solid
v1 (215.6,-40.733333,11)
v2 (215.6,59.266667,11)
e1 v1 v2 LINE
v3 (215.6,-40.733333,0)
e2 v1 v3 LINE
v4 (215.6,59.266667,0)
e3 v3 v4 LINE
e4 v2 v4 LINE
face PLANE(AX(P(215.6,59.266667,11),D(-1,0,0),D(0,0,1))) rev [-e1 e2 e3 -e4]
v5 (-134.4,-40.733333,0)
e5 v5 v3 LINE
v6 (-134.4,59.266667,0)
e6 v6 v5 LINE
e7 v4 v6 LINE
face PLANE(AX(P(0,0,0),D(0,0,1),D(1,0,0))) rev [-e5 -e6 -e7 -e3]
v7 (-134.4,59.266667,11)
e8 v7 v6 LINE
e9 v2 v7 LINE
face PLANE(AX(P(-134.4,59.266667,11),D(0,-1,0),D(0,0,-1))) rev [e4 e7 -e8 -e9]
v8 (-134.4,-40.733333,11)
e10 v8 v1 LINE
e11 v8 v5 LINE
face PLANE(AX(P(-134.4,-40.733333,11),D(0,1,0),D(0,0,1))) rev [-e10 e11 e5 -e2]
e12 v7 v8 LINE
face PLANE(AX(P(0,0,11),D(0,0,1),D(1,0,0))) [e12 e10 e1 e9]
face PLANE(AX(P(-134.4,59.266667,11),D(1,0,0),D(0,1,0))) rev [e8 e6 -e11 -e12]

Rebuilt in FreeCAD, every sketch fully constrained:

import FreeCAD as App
import Part
import Sketcher

V = App.Vector
Q = App.Units.Quantity

doc = App.newDocument("Part")
body = doc.addObject("PartDesign::Body", "Body")

# Sketch on XY plane
sketch1 = doc.addObject("Sketcher::SketchObject", "Sketch")
body.addObject(sketch1)
sketch1.AttachmentSupport = (doc.XY_Plane, [""])
sketch1.MapMode = "FlatFace"
sketch1.addGeometry(Part.LineSegment(V(-134, 59, 0), V(-134, -41, 0)), False)
sketch1.addGeometry(Part.LineSegment(V(-134, -41, 0), V(216, -41, 0)), False)
sketch1.addGeometry(Part.LineSegment(V(216, -41, 0), V(216, 59, 0)), False)
sketch1.addGeometry(Part.LineSegment(V(216, 59, 0), V(-134, 59, 0)), False)
sketch1.addConstraint(Sketcher.Constraint("Coincident", 0, 2, 1, 1))
sketch1.addConstraint(Sketcher.Constraint("Coincident", 1, 2, 2, 1))
sketch1.addConstraint(Sketcher.Constraint("Coincident", 2, 2, 3, 1))
sketch1.addConstraint(Sketcher.Constraint("Coincident", 3, 2, 0, 1))
sketch1.addConstraint(Sketcher.Constraint("Vertical", 0))
sketch1.addConstraint(Sketcher.Constraint("Horizontal", 1))
sketch1.addConstraint(Sketcher.Constraint("Vertical", 2))
sketch1.addConstraint(Sketcher.Constraint("Horizontal", 3))
sketch1.addConstraint(Sketcher.Constraint("DistanceX", 1, 1, 1, 2, Q("350 mm")))
sketch1.addConstraint(Sketcher.Constraint("DistanceY", 0, 2, 0, 1, Q("100 mm")))
sketch1.addConstraint(Sketcher.Constraint("DistanceX", 0, 2, -1, 1, Q("134.4 mm")))
sketch1.addConstraint(Sketcher.Constraint("DistanceY", 0, 2, -1, 1, Q("40.733333 mm")))
pad1 = doc.addObject("PartDesign::Pad", "Pad")
body.addObject(pad1)
pad1.Profile = sketch1
pad1.Length = 11

doc.recompute()
